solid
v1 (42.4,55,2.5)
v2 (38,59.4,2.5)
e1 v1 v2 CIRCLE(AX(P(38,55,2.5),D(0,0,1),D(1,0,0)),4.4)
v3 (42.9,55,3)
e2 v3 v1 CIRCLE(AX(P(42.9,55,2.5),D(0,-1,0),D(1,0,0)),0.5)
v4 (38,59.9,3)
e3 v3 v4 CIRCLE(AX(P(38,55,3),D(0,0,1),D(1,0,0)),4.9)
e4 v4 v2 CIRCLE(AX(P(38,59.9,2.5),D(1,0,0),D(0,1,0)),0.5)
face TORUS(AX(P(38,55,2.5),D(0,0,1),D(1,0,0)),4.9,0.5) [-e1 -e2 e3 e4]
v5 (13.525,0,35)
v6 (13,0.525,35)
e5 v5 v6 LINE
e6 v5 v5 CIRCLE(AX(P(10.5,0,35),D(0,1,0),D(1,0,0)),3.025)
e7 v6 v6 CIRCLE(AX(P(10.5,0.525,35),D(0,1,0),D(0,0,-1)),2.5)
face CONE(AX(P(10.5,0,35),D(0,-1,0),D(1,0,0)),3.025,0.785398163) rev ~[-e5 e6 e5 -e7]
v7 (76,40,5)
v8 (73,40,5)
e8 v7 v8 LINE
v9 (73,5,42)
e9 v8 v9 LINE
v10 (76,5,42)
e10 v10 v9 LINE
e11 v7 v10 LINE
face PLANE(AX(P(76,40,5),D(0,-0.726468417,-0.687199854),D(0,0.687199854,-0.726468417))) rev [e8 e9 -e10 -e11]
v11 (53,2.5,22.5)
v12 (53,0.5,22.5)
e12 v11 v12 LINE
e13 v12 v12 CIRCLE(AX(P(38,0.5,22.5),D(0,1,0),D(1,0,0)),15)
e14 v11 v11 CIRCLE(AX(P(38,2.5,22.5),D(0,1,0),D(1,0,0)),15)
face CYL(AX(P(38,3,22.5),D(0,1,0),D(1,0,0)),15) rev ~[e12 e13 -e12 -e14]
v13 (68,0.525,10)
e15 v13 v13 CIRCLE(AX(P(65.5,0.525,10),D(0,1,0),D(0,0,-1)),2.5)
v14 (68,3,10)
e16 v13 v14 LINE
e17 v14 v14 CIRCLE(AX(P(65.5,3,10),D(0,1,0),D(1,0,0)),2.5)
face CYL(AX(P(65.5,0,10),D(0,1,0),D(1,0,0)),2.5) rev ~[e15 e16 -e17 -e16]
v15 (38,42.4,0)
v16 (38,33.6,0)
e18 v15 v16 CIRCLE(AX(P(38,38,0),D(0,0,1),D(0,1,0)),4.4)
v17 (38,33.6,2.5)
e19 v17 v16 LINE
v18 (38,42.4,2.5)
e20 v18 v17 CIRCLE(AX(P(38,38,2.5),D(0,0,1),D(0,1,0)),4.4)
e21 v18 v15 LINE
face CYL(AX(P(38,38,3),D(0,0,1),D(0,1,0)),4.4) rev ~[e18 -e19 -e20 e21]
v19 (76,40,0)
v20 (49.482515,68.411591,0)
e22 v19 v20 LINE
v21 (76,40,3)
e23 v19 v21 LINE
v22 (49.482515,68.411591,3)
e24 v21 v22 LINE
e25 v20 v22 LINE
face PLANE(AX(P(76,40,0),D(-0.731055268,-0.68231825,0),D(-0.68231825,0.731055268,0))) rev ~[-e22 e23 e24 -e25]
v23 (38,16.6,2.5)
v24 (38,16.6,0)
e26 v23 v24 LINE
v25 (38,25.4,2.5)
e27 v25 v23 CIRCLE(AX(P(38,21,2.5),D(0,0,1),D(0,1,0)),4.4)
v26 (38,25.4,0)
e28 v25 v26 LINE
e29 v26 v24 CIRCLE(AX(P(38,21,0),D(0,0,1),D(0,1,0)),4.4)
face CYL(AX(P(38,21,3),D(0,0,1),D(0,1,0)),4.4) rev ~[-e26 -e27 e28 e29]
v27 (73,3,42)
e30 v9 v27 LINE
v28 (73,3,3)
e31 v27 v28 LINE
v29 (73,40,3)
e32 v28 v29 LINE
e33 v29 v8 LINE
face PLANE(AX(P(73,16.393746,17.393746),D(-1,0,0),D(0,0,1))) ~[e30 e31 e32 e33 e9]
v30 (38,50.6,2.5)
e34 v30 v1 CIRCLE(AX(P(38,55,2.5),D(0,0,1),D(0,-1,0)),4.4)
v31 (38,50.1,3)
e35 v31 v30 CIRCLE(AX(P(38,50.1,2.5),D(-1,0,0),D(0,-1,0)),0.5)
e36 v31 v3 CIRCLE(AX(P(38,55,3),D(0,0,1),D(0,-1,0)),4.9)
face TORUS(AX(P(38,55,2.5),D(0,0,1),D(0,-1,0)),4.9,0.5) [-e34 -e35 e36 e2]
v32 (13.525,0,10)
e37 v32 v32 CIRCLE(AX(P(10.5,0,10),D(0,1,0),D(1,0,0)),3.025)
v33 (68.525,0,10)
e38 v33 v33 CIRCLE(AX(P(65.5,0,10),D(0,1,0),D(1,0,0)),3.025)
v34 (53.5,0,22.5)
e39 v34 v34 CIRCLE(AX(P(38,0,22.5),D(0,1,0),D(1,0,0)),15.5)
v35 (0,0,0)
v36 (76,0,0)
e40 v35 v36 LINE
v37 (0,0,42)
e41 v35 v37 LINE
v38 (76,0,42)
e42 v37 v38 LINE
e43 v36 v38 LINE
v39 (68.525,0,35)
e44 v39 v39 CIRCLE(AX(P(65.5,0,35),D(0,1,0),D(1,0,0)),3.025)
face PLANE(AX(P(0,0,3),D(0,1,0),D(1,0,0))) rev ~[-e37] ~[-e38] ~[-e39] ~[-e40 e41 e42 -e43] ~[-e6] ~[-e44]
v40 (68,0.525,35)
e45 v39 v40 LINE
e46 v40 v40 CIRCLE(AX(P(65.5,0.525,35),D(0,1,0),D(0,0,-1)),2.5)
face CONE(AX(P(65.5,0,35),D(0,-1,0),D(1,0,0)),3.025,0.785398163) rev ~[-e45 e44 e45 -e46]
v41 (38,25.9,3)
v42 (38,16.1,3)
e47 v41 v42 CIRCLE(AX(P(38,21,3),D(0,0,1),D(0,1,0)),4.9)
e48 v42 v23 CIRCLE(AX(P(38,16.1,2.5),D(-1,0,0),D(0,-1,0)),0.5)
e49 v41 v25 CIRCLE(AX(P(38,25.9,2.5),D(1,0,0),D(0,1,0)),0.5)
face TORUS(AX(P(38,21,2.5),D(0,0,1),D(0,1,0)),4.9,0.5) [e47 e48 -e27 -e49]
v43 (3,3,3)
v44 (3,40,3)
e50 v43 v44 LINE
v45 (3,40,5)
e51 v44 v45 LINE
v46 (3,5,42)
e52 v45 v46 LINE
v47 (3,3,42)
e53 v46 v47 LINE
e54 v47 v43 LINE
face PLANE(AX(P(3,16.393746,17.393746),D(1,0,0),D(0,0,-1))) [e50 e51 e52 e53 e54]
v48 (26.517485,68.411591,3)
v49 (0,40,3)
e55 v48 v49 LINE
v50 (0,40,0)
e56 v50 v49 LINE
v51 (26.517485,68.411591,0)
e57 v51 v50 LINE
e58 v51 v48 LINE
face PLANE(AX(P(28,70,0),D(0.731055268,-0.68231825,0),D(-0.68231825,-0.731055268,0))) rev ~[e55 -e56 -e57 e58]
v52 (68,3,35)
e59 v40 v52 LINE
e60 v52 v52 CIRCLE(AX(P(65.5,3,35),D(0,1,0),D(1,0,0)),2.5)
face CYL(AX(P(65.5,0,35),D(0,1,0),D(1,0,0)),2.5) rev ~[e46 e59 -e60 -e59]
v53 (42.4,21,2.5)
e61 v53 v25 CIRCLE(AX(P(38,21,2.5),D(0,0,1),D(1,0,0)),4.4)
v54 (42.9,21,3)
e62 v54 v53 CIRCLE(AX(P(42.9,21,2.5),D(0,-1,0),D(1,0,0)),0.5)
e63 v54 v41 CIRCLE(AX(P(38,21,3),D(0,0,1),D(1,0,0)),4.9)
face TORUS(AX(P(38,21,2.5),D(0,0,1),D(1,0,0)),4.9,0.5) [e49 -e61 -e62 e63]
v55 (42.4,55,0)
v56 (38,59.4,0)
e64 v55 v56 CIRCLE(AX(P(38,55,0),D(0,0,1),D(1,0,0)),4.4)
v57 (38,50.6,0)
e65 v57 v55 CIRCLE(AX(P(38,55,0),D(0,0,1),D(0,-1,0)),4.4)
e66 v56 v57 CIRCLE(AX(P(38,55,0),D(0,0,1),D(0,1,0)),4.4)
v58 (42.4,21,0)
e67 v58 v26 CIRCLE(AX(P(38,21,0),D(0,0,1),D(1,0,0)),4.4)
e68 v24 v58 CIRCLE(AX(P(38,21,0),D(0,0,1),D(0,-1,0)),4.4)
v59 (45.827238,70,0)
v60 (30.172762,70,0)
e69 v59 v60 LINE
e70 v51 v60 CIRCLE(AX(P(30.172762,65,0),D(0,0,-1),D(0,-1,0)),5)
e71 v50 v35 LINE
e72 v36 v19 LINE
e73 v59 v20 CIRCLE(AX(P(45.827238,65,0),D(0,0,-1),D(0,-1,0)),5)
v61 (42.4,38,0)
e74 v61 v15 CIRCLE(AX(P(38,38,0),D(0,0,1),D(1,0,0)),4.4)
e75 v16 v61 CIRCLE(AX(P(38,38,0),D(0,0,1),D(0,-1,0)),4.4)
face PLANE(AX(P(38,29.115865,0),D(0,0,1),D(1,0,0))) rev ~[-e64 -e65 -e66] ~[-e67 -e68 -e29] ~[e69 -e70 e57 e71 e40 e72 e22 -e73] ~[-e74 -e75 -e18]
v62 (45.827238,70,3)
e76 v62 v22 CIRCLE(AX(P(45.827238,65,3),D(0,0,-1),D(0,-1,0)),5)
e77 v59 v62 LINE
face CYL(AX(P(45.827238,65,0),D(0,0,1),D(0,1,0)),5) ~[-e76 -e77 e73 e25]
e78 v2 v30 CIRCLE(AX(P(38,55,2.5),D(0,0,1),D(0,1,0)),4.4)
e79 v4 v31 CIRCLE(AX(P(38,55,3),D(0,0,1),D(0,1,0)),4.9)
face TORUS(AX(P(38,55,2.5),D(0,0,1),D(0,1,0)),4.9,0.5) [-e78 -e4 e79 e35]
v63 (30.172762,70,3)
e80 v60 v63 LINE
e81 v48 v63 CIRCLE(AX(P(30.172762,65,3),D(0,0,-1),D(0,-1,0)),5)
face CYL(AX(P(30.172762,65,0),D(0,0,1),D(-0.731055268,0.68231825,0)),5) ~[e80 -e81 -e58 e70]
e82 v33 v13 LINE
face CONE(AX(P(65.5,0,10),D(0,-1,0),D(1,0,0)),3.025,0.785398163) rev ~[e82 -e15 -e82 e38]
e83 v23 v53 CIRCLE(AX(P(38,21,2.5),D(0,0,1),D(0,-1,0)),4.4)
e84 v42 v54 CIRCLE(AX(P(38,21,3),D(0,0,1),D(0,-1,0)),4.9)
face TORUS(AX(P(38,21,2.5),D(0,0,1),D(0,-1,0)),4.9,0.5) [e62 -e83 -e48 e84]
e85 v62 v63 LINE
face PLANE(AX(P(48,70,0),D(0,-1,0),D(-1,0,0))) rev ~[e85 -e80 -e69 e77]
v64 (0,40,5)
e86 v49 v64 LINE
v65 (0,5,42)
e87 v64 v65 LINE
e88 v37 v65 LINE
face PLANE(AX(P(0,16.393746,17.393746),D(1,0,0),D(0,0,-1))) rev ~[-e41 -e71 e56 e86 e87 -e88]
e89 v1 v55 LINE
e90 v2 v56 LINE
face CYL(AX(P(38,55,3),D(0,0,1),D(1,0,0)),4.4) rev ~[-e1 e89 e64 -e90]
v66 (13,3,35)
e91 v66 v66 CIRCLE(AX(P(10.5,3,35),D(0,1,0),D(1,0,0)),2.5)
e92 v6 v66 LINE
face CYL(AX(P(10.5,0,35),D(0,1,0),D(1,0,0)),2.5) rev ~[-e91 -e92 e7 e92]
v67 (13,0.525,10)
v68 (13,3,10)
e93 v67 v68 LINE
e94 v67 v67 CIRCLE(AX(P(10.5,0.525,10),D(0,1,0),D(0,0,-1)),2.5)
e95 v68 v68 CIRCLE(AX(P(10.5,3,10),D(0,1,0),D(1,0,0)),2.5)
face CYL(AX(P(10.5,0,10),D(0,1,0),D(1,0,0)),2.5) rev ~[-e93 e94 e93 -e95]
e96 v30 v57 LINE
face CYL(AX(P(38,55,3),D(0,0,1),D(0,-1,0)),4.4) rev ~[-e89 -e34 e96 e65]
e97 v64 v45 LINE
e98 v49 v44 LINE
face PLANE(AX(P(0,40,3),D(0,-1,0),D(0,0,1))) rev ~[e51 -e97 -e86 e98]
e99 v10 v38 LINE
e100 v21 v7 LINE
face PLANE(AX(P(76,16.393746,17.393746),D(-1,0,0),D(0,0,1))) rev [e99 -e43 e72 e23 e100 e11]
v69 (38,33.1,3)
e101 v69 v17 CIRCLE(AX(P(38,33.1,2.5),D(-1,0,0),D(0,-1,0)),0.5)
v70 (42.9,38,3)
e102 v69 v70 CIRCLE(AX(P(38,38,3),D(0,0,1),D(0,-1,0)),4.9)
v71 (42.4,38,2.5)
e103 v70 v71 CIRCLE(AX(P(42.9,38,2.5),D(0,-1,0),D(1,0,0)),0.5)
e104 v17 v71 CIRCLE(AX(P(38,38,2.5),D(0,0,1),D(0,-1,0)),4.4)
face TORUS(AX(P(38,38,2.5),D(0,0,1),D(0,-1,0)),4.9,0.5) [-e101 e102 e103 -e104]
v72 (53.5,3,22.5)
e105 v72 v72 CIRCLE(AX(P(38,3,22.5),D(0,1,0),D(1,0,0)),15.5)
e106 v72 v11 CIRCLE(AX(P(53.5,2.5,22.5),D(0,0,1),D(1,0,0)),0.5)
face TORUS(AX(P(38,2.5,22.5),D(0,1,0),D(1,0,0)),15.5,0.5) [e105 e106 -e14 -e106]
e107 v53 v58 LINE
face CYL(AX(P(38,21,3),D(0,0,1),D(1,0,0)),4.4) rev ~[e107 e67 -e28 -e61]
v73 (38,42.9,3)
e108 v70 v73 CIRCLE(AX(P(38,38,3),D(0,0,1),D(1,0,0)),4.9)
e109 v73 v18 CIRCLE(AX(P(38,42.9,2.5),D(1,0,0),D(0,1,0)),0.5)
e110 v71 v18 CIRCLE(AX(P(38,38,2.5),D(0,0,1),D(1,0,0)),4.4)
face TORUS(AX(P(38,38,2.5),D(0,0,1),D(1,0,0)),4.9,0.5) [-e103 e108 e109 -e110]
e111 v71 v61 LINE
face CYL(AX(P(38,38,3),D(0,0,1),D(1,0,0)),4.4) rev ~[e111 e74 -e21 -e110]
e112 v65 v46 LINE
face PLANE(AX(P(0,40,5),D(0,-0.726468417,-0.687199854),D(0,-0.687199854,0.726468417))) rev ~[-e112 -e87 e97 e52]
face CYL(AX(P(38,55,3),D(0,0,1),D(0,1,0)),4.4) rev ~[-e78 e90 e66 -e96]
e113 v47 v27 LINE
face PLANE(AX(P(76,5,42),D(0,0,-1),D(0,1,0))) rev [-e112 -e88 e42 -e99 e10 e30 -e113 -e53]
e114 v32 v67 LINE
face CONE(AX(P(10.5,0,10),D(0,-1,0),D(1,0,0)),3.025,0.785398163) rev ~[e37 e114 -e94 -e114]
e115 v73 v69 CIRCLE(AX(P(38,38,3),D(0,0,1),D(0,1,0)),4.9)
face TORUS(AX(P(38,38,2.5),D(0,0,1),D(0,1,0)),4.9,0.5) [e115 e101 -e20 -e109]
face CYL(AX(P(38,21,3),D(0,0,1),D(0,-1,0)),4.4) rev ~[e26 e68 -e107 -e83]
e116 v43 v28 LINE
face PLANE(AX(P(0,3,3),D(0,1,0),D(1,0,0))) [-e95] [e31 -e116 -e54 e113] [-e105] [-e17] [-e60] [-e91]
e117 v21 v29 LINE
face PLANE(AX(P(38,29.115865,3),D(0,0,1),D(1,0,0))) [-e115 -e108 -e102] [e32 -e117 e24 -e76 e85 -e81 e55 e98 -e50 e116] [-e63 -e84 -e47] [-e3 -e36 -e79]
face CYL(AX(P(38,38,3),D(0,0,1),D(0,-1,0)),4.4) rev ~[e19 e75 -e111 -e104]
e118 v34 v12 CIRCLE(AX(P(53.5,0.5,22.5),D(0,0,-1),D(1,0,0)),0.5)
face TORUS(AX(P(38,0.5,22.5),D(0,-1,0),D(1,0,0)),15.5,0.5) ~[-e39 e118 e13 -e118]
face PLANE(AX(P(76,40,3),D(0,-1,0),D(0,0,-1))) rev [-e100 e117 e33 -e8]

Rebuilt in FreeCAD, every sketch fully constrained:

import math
import FreeCAD as App
import Part
import Sketcher
from FreeCAD import Vector


def edges_at(feature, points):
    """Names of the edges that pass closest to the given points."""
    edges = feature.Shape.Edges
    near = lambda p: min(range(len(edges)), key=lambda i: edges[i].distToShape(Part.Vertex(*p))[0])
    return sorted({f"Edge{near(p) + 1}" for p in points})


def add_polygon(sketch, points):
    """Adds a closed chain of lines whose ends are joined by coincident constraints."""
    first, n = sketch.GeometryCount, len(points)
    for a, b in zip(points, points[1:] + points[:1]):
        sketch.addGeometry(Part.LineSegment(App.Vector(*a, 0), App.Vector(*b, 0)), False)
    for i in range(n):
        sketch.addConstraint(Sketcher.Constraint("Coincident", first + i, 2, first + (i + 1) % n, 1))

doc = App.newDocument("Part")
body = doc.addObject("PartDesign::Body", "Body")

# Sketch on XY plane
sketch1 = doc.addObject("Sketcher::SketchObject", "Sketch")
body.addObject(sketch1)
sketch1.AttachmentSupport = (doc.XY_Plane, [""])
sketch1.MapMode = "FlatFace"
add_polygon(sketch1, [(48, 70), (28, 70), (0, 40), (0, 0), (76, 0), (76, 40)])  # lines 0-5
sketch1.addConstraint(Sketcher.Constraint("Horizontal", 0))
sketch1.addConstraint(Sketcher.Constraint("Vertical", 2))
sketch1.addConstraint(Sketcher.Constraint("Horizontal", 3))
sketch1.addConstraint(Sketcher.Constraint("Vertical", 4))
sketch1.addConstraint(Sketcher.Constraint("Coincident", 2, 2, -1, 1))
sketch1.addConstraint(Sketcher.Constraint("Horizontal", 1, 2, 4, 2))
sketch1.addConstraint(Sketcher.Constraint("Equal", 1, 5))
sketch1.addConstraint(Sketcher.Constraint("DistanceX", 0, 2, 0, 1, 20.0))
sketch1.addConstraint(Sketcher.Constraint("DistanceX", 3, 1, 3, 2, 76.0))
sketch1.addConstraint(Sketcher.Constraint("DistanceY", 2, 2, 2, 1, 40.0))
sketch1.addConstraint(Sketcher.Constraint("DistanceY", -1, 1, 0, 2, 70.0))
pad1 = doc.addObject("PartDesign::Pad", "Pad")
body.addObject(pad1)
pad1.Profile = sketch1
pad1.Length = 3

# Sketch on XY plane
sketch2 = doc.addObject("Sketcher::SketchObject", "Sketch001")
body.addObject(sketch2)
sketch2.AttachmentSupport = (doc.XY_Plane, [""])
sketch2.MapMode = "FlatFace"
sketch2.AttachmentOffset = App.Placement(Vector(0, 0, 3), App.Rotation())
add_polygon(sketch2, [(0, 3), (0, 0), (76, 0), (76, 3)])  # lines 0-3
sketch2.addConstraint(Sketcher.Constraint("Vertical", 0))
sketch2.addConstraint(Sketcher.Constraint("Horizontal", 1))
sketch2.addConstraint(Sketcher.Constraint("Vertical", 2))
sketch2.addConstraint(Sketcher.Constraint("Horizontal", 3))
sketch2.addConstraint(Sketcher.Constraint("Coincident", 0, 2, -1, 1))
sketch2.addConstraint(Sketcher.Constraint("DistanceX", 1, 1, 1, 2, 76.0))
sketch2.addConstraint(Sketcher.Constraint("DistanceY", 0, 2, 0, 1, 3.0))
pad2 = doc.addObject("PartDesign::Pad", "Pad001")
body.addObject(pad2)
pad2.Profile = sketch2
pad2.Length = 39

# Sketch on XY plane
sketch3 = doc.addObject("Sketcher::SketchObject", "Sketch002")
body.addObject(sketch3)
sketch3.AttachmentSupport = (doc.XY_Plane, [""])
sketch3.MapMode = "FlatFace"
sketch3.AttachmentOffset = App.Placement(Vector(0, 0, 3), App.Rotation())
sketch3.addGeometry(Part.ArcOfCircle(Part.Circle(Vector(38, 55, 0), Vector(0, 0, 1), 4.4), math.radians(0), math.radians(90)), False)
sketch3.addGeometry(Part.ArcOfCircle(Part.Circle(Vector(38, 55, 0), Vector(0, 0, 1), 4.4), math.radians(90), math.radians(270)), False)
sketch3.addGeometry(Part.ArcOfCircle(Part.Circle(Vector(38, 55, 0), Vector(0, 0, 1), 4.4), math.radians(-90), math.radians(0)), False)
sketch3.addGeometry(Part.ArcOfCircle(Part.Circle(Vector(38, 38, 0), Vector(0, 0, 1), 4.4), math.radians(0), math.radians(90)), False)
sketch3.addGeometry(Part.ArcOfCircle(Part.Circle(Vector(38, 38, 0), Vector(0, 0, 1), 4.4), math.radians(90), math.radians(270)), False)
sketch3.addGeometry(Part.ArcOfCircle(Part.Circle(Vector(38, 38, 0), Vector(0, 0, 1), 4.4), math.radians(-90), math.radians(0)), False)
sketch3.addGeometry(Part.ArcOfCircle(Part.Circle(Vector(38, 21, 0), Vector(0, 0, 1), 4.4), math.radians(0), math.radians(90)), False)
sketch3.addGeometry(Part.ArcOfCircle(Part.Circle(Vector(38, 21, 0), Vector(0, 0, 1), 4.4), math.radians(90), math.radians(270)), False)
sketch3.addGeometry(Part.ArcOfCircle(Part.Circle(Vector(38, 21, 0), Vector(0, 0, 1), 4.4), math.radians(-90), math.radians(0)), False)
sketch3.addConstraint(Sketcher.Constraint("Tangent", 0, 2, 1, 1))
sketch3.addConstraint(Sketcher.Constraint("Tangent", 1, 2, 2, 1))
sketch3.addConstraint(Sketcher.Constraint("Tangent", 2, 2, 0, 1))
sketch3.addConstraint(Sketcher.Constraint("Tangent", 3, 2, 4, 1))
sketch3.addConstraint(Sketcher.Constraint("Tangent", 4, 2, 5, 1))
sketch3.addConstraint(Sketcher.Constraint("Tangent", 5, 2, 3, 1))
sketch3.addConstraint(Sketcher.Constraint("Tangent", 6, 2, 7, 1))
sketch3.addConstraint(Sketcher.Constraint("Tangent", 7, 2, 8, 1))
sketch3.addConstraint(Sketcher.Constraint("Tangent", 8, 2, 6, 1))
sketch3.addConstraint(Sketcher.Constraint("Equal", 2, 3))
sketch3.addConstraint(Sketcher.Constraint("Equal", 5, 6))
sketch3.addConstraint(Sketcher.Constraint("Horizontal", 1, 3, 2, 2))
sketch3.addConstraint(Sketcher.Constraint("Horizontal", 4, 3, 5, 2))
sketch3.addConstraint(Sketcher.Constraint("Horizontal", 7, 3, 8, 2))
sketch3.addConstraint(Sketcher.Constraint("Vertical", 2, 3, 3, 3))
sketch3.addConstraint(Sketcher.Constraint("Vertical", 5, 3, 6, 3))
sketch3.addConstraint(Sketcher.Constraint("Vertical", 8, 3, 0, 2))
sketch3.addConstraint(Sketcher.Constraint("Vertical", 0, 2, 1, 2))
sketch3.addConstraint(Sketcher.Constraint("Vertical", 1, 2, 3, 2))
sketch3.addConstraint(Sketcher.Constraint("Vertical", 3, 2, 4, 2))
sketch3.addConstraint(Sketcher.Constraint("Vertical", 4, 2, 6, 2))
sketch3.addConstraint(Sketcher.Constraint("Vertical", 6, 2, 7, 2))
sketch3.addConstraint(Sketcher.Constraint("Radius", 0, 4.4))
sketch3.addConstraint(Sketcher.Constraint("DistanceX", -1, 1, 0, 3, 38.0))
sketch3.addConstraint(Sketcher.Constraint("DistanceY", -1, 1, 0, 3, 55.0))
sketch3.addConstraint(Sketcher.Constraint("DistanceY", -1, 1, 3, 3, 38.0))
sketch3.addConstraint(Sketcher.Constraint("DistanceY", -1, 1, 6, 3, 21.0))
pocket1 = doc.addObject("PartDesign::Pocket", "Pocket")
body.addObject(pocket1)
pocket1.Profile = sketch3
pocket1.Length = 52

# Sketch on XZ plane
sketch4 = doc.addObject("Sketcher::SketchObject", "Sketch003")
body.addObject(sketch4)
sketch4.AttachmentSupport = (doc.XZ_Plane, [""])
sketch4.MapMode = "FlatFace"
sketch4.AttachmentOffset = App.Placement(Vector(0, 0, -3), App.Rotation())
sketch4.addGeometry(Part.Circle(Vector(38, 22.5, 0), Vector(0, 0, 1), 15), False)
sketch4.addConstraint(Sketcher.Constraint("Diameter", 0, 30.0))
sketch4.addConstraint(Sketcher.Constraint("DistanceX", -1, 1, 0, 3, 38.0))
sketch4.addConstraint(Sketcher.Constraint("DistanceY", -1, 1, 0, 3, 22.5))
pocket2 = doc.addObject("PartDesign::Pocket", "Pocket001")
body.addObject(pocket2)
pocket2.Profile = sketch4
pocket2.Length = 52
pocket2.Reversed = True

# Sketch on YZ plane
sketch5 = doc.addObject("Sketcher::SketchObject", "Sketch004")
body.addObject(sketch5)
sketch5.AttachmentSupport = (doc.YZ_Plane, [""])
sketch5.MapMode = "FlatFace"
add_polygon(sketch5, [(40, 5), (40, 3), (3, 3), (3, 42), (5, 42)])  # lines 0-4
sketch5.addConstraint(Sketcher.Constraint("Vertical", 0))
sketch5.addConstraint(Sketcher.Constraint("Horizontal", 1))
sketch5.addConstraint(Sketcher.Constraint("Vertical", 2))
sketch5.addConstraint(Sketcher.Constraint("Horizontal", 3))
sketch5.addConstraint(Sketcher.Constraint("Equal", 3, 0))
sketch5.addConstraint(Sketcher.Constraint("DistanceX", 1, 2, 1, 1, 37.0))
sketch5.addConstraint(Sketcher.Constraint("DistanceX", 3, 1, 3, 2, 2.0))
sketch5.addConstraint(Sketcher.Constraint("DistanceY", 2, 1, 2, 2, 39.0))
sketch5.addConstraint(Sketcher.Constraint("DistanceX", -1, 1, 0, 2, 40.0))
sketch5.addConstraint(Sketcher.Constraint("DistanceY", -1, 1, 0, 2, 3.0))
pad3 = doc.addObject("PartDesign::Pad", "Pad002")
body.addObject(pad3)
pad3.Profile = sketch5
pad3.Length = 3
doc.recompute()

datumplane = doc.addObject("PartDesign::Plane", "DatumPlane")
body.addObject(datumplane)
datumplane.AttachmentSupport = (doc.YZ_Plane, [""])
datumplane.MapMode = "FlatFace"
datumplane.AttachmentOffset = App.Placement(Vector(0, 0, 38), App.Rotation())
mirrored = doc.addObject("PartDesign::Mirrored", "Mirrored")
body.addObject(mirrored)
mirrored.Originals = [pad3]
mirrored.MirrorPlane = (datumplane, [""])
body.Tip = mirrored

# Sketch on XZ plane
sketch6 = doc.addObject("Sketcher::SketchObject", "Sketch005")
body.addObject(sketch6)
sketch6.AttachmentSupport = (doc.XZ_Plane, [""])
sketch6.MapMode = "FlatFace"
sketch6.addGeometry(Part.Circle(Vector(65.5, 10, 0), Vector(0, 0, 1), 2.5), False)
sketch6.addGeometry(Part.Circle(Vector(10.5, 10, 0), Vector(0, 0, 1), 2.5), False)
sketch6.addGeometry(Part.Circle(Vector(10.5, 35, 0), Vector(0, 0, 1), 2.5), False)
sketch6.addGeometry(Part.Circle(Vector(65.5, 35, 0), Vector(0, 0, 1), 2.5), False)
sketch6.addConstraint(Sketcher.Constraint("Equal", 0, 1))
sketch6.addConstraint(Sketcher.Constraint("Equal", 1, 2))
sketch6.addConstraint(Sketcher.Constraint("Equal", 2, 3))
sketch6.addConstraint(Sketcher.Constraint("Horizontal", 0, 3, 1, 3))
sketch6.addConstraint(Sketcher.Constraint("Horizontal", 2, 3, 3, 3))
sketch6.addConstraint(Sketcher.Constraint("Vertical", 1, 3, 2, 3))
sketch6.addConstraint(Sketcher.Constraint("Vertical", 0, 3, 3, 3))
sketch6.addConstraint(Sketcher.Constraint("Diameter", 0, 5.0))
sketch6.addConstraint(Sketcher.Constraint("DistanceY", -1, 1, 0, 3, 10.0))
sketch6.addConstraint(Sketcher.Constraint("DistanceY", -1, 1, 2, 3, 35.0))
sketch6.addConstraint(Sketcher.Constraint("DistanceX", 1, 3, 0, 3, 55.0))
sketch6.addConstraint(Sketcher.Constraint("DistanceX", -1, 1, 0, 3, 65.5))
doc.recompute()
hole = doc.addObject("PartDesign::Hole", "Hole")
body.addObject(hole)
hole.Profile = sketch6
hole.ThreadType = "None"
hole.Diameter = 5
hole.DepthType = "ThroughAll"
hole.HoleCutType = "Countersink"
hole.HoleCutDiameter = 6.05
hole.HoleCutCountersinkAngle = 90
doc.recompute()

fillet = doc.addObject("PartDesign::Fillet", "Fillet")
body.addObject(fillet)
fillet.Base = (hole, edges_at(hole, [(48, 70, 1.5), (28, 70, 1.5)]))
fillet.Radius = 5
doc.recompute()

fillet2 = doc.addObject("PartDesign::Fillet", "Fillet001")
body.addObject(fillet2)
fillet2.Base = (fillet, edges_at(fillet, [
    (41.111, 51.889, 3),
    (41.111, 34.889, 3),
    (41.111, 17.889, 3),
    (23, 0, 22.5),
    (23, 3, 22.5),
]))
fillet2.Radius = 0.5

doc.recompute()
